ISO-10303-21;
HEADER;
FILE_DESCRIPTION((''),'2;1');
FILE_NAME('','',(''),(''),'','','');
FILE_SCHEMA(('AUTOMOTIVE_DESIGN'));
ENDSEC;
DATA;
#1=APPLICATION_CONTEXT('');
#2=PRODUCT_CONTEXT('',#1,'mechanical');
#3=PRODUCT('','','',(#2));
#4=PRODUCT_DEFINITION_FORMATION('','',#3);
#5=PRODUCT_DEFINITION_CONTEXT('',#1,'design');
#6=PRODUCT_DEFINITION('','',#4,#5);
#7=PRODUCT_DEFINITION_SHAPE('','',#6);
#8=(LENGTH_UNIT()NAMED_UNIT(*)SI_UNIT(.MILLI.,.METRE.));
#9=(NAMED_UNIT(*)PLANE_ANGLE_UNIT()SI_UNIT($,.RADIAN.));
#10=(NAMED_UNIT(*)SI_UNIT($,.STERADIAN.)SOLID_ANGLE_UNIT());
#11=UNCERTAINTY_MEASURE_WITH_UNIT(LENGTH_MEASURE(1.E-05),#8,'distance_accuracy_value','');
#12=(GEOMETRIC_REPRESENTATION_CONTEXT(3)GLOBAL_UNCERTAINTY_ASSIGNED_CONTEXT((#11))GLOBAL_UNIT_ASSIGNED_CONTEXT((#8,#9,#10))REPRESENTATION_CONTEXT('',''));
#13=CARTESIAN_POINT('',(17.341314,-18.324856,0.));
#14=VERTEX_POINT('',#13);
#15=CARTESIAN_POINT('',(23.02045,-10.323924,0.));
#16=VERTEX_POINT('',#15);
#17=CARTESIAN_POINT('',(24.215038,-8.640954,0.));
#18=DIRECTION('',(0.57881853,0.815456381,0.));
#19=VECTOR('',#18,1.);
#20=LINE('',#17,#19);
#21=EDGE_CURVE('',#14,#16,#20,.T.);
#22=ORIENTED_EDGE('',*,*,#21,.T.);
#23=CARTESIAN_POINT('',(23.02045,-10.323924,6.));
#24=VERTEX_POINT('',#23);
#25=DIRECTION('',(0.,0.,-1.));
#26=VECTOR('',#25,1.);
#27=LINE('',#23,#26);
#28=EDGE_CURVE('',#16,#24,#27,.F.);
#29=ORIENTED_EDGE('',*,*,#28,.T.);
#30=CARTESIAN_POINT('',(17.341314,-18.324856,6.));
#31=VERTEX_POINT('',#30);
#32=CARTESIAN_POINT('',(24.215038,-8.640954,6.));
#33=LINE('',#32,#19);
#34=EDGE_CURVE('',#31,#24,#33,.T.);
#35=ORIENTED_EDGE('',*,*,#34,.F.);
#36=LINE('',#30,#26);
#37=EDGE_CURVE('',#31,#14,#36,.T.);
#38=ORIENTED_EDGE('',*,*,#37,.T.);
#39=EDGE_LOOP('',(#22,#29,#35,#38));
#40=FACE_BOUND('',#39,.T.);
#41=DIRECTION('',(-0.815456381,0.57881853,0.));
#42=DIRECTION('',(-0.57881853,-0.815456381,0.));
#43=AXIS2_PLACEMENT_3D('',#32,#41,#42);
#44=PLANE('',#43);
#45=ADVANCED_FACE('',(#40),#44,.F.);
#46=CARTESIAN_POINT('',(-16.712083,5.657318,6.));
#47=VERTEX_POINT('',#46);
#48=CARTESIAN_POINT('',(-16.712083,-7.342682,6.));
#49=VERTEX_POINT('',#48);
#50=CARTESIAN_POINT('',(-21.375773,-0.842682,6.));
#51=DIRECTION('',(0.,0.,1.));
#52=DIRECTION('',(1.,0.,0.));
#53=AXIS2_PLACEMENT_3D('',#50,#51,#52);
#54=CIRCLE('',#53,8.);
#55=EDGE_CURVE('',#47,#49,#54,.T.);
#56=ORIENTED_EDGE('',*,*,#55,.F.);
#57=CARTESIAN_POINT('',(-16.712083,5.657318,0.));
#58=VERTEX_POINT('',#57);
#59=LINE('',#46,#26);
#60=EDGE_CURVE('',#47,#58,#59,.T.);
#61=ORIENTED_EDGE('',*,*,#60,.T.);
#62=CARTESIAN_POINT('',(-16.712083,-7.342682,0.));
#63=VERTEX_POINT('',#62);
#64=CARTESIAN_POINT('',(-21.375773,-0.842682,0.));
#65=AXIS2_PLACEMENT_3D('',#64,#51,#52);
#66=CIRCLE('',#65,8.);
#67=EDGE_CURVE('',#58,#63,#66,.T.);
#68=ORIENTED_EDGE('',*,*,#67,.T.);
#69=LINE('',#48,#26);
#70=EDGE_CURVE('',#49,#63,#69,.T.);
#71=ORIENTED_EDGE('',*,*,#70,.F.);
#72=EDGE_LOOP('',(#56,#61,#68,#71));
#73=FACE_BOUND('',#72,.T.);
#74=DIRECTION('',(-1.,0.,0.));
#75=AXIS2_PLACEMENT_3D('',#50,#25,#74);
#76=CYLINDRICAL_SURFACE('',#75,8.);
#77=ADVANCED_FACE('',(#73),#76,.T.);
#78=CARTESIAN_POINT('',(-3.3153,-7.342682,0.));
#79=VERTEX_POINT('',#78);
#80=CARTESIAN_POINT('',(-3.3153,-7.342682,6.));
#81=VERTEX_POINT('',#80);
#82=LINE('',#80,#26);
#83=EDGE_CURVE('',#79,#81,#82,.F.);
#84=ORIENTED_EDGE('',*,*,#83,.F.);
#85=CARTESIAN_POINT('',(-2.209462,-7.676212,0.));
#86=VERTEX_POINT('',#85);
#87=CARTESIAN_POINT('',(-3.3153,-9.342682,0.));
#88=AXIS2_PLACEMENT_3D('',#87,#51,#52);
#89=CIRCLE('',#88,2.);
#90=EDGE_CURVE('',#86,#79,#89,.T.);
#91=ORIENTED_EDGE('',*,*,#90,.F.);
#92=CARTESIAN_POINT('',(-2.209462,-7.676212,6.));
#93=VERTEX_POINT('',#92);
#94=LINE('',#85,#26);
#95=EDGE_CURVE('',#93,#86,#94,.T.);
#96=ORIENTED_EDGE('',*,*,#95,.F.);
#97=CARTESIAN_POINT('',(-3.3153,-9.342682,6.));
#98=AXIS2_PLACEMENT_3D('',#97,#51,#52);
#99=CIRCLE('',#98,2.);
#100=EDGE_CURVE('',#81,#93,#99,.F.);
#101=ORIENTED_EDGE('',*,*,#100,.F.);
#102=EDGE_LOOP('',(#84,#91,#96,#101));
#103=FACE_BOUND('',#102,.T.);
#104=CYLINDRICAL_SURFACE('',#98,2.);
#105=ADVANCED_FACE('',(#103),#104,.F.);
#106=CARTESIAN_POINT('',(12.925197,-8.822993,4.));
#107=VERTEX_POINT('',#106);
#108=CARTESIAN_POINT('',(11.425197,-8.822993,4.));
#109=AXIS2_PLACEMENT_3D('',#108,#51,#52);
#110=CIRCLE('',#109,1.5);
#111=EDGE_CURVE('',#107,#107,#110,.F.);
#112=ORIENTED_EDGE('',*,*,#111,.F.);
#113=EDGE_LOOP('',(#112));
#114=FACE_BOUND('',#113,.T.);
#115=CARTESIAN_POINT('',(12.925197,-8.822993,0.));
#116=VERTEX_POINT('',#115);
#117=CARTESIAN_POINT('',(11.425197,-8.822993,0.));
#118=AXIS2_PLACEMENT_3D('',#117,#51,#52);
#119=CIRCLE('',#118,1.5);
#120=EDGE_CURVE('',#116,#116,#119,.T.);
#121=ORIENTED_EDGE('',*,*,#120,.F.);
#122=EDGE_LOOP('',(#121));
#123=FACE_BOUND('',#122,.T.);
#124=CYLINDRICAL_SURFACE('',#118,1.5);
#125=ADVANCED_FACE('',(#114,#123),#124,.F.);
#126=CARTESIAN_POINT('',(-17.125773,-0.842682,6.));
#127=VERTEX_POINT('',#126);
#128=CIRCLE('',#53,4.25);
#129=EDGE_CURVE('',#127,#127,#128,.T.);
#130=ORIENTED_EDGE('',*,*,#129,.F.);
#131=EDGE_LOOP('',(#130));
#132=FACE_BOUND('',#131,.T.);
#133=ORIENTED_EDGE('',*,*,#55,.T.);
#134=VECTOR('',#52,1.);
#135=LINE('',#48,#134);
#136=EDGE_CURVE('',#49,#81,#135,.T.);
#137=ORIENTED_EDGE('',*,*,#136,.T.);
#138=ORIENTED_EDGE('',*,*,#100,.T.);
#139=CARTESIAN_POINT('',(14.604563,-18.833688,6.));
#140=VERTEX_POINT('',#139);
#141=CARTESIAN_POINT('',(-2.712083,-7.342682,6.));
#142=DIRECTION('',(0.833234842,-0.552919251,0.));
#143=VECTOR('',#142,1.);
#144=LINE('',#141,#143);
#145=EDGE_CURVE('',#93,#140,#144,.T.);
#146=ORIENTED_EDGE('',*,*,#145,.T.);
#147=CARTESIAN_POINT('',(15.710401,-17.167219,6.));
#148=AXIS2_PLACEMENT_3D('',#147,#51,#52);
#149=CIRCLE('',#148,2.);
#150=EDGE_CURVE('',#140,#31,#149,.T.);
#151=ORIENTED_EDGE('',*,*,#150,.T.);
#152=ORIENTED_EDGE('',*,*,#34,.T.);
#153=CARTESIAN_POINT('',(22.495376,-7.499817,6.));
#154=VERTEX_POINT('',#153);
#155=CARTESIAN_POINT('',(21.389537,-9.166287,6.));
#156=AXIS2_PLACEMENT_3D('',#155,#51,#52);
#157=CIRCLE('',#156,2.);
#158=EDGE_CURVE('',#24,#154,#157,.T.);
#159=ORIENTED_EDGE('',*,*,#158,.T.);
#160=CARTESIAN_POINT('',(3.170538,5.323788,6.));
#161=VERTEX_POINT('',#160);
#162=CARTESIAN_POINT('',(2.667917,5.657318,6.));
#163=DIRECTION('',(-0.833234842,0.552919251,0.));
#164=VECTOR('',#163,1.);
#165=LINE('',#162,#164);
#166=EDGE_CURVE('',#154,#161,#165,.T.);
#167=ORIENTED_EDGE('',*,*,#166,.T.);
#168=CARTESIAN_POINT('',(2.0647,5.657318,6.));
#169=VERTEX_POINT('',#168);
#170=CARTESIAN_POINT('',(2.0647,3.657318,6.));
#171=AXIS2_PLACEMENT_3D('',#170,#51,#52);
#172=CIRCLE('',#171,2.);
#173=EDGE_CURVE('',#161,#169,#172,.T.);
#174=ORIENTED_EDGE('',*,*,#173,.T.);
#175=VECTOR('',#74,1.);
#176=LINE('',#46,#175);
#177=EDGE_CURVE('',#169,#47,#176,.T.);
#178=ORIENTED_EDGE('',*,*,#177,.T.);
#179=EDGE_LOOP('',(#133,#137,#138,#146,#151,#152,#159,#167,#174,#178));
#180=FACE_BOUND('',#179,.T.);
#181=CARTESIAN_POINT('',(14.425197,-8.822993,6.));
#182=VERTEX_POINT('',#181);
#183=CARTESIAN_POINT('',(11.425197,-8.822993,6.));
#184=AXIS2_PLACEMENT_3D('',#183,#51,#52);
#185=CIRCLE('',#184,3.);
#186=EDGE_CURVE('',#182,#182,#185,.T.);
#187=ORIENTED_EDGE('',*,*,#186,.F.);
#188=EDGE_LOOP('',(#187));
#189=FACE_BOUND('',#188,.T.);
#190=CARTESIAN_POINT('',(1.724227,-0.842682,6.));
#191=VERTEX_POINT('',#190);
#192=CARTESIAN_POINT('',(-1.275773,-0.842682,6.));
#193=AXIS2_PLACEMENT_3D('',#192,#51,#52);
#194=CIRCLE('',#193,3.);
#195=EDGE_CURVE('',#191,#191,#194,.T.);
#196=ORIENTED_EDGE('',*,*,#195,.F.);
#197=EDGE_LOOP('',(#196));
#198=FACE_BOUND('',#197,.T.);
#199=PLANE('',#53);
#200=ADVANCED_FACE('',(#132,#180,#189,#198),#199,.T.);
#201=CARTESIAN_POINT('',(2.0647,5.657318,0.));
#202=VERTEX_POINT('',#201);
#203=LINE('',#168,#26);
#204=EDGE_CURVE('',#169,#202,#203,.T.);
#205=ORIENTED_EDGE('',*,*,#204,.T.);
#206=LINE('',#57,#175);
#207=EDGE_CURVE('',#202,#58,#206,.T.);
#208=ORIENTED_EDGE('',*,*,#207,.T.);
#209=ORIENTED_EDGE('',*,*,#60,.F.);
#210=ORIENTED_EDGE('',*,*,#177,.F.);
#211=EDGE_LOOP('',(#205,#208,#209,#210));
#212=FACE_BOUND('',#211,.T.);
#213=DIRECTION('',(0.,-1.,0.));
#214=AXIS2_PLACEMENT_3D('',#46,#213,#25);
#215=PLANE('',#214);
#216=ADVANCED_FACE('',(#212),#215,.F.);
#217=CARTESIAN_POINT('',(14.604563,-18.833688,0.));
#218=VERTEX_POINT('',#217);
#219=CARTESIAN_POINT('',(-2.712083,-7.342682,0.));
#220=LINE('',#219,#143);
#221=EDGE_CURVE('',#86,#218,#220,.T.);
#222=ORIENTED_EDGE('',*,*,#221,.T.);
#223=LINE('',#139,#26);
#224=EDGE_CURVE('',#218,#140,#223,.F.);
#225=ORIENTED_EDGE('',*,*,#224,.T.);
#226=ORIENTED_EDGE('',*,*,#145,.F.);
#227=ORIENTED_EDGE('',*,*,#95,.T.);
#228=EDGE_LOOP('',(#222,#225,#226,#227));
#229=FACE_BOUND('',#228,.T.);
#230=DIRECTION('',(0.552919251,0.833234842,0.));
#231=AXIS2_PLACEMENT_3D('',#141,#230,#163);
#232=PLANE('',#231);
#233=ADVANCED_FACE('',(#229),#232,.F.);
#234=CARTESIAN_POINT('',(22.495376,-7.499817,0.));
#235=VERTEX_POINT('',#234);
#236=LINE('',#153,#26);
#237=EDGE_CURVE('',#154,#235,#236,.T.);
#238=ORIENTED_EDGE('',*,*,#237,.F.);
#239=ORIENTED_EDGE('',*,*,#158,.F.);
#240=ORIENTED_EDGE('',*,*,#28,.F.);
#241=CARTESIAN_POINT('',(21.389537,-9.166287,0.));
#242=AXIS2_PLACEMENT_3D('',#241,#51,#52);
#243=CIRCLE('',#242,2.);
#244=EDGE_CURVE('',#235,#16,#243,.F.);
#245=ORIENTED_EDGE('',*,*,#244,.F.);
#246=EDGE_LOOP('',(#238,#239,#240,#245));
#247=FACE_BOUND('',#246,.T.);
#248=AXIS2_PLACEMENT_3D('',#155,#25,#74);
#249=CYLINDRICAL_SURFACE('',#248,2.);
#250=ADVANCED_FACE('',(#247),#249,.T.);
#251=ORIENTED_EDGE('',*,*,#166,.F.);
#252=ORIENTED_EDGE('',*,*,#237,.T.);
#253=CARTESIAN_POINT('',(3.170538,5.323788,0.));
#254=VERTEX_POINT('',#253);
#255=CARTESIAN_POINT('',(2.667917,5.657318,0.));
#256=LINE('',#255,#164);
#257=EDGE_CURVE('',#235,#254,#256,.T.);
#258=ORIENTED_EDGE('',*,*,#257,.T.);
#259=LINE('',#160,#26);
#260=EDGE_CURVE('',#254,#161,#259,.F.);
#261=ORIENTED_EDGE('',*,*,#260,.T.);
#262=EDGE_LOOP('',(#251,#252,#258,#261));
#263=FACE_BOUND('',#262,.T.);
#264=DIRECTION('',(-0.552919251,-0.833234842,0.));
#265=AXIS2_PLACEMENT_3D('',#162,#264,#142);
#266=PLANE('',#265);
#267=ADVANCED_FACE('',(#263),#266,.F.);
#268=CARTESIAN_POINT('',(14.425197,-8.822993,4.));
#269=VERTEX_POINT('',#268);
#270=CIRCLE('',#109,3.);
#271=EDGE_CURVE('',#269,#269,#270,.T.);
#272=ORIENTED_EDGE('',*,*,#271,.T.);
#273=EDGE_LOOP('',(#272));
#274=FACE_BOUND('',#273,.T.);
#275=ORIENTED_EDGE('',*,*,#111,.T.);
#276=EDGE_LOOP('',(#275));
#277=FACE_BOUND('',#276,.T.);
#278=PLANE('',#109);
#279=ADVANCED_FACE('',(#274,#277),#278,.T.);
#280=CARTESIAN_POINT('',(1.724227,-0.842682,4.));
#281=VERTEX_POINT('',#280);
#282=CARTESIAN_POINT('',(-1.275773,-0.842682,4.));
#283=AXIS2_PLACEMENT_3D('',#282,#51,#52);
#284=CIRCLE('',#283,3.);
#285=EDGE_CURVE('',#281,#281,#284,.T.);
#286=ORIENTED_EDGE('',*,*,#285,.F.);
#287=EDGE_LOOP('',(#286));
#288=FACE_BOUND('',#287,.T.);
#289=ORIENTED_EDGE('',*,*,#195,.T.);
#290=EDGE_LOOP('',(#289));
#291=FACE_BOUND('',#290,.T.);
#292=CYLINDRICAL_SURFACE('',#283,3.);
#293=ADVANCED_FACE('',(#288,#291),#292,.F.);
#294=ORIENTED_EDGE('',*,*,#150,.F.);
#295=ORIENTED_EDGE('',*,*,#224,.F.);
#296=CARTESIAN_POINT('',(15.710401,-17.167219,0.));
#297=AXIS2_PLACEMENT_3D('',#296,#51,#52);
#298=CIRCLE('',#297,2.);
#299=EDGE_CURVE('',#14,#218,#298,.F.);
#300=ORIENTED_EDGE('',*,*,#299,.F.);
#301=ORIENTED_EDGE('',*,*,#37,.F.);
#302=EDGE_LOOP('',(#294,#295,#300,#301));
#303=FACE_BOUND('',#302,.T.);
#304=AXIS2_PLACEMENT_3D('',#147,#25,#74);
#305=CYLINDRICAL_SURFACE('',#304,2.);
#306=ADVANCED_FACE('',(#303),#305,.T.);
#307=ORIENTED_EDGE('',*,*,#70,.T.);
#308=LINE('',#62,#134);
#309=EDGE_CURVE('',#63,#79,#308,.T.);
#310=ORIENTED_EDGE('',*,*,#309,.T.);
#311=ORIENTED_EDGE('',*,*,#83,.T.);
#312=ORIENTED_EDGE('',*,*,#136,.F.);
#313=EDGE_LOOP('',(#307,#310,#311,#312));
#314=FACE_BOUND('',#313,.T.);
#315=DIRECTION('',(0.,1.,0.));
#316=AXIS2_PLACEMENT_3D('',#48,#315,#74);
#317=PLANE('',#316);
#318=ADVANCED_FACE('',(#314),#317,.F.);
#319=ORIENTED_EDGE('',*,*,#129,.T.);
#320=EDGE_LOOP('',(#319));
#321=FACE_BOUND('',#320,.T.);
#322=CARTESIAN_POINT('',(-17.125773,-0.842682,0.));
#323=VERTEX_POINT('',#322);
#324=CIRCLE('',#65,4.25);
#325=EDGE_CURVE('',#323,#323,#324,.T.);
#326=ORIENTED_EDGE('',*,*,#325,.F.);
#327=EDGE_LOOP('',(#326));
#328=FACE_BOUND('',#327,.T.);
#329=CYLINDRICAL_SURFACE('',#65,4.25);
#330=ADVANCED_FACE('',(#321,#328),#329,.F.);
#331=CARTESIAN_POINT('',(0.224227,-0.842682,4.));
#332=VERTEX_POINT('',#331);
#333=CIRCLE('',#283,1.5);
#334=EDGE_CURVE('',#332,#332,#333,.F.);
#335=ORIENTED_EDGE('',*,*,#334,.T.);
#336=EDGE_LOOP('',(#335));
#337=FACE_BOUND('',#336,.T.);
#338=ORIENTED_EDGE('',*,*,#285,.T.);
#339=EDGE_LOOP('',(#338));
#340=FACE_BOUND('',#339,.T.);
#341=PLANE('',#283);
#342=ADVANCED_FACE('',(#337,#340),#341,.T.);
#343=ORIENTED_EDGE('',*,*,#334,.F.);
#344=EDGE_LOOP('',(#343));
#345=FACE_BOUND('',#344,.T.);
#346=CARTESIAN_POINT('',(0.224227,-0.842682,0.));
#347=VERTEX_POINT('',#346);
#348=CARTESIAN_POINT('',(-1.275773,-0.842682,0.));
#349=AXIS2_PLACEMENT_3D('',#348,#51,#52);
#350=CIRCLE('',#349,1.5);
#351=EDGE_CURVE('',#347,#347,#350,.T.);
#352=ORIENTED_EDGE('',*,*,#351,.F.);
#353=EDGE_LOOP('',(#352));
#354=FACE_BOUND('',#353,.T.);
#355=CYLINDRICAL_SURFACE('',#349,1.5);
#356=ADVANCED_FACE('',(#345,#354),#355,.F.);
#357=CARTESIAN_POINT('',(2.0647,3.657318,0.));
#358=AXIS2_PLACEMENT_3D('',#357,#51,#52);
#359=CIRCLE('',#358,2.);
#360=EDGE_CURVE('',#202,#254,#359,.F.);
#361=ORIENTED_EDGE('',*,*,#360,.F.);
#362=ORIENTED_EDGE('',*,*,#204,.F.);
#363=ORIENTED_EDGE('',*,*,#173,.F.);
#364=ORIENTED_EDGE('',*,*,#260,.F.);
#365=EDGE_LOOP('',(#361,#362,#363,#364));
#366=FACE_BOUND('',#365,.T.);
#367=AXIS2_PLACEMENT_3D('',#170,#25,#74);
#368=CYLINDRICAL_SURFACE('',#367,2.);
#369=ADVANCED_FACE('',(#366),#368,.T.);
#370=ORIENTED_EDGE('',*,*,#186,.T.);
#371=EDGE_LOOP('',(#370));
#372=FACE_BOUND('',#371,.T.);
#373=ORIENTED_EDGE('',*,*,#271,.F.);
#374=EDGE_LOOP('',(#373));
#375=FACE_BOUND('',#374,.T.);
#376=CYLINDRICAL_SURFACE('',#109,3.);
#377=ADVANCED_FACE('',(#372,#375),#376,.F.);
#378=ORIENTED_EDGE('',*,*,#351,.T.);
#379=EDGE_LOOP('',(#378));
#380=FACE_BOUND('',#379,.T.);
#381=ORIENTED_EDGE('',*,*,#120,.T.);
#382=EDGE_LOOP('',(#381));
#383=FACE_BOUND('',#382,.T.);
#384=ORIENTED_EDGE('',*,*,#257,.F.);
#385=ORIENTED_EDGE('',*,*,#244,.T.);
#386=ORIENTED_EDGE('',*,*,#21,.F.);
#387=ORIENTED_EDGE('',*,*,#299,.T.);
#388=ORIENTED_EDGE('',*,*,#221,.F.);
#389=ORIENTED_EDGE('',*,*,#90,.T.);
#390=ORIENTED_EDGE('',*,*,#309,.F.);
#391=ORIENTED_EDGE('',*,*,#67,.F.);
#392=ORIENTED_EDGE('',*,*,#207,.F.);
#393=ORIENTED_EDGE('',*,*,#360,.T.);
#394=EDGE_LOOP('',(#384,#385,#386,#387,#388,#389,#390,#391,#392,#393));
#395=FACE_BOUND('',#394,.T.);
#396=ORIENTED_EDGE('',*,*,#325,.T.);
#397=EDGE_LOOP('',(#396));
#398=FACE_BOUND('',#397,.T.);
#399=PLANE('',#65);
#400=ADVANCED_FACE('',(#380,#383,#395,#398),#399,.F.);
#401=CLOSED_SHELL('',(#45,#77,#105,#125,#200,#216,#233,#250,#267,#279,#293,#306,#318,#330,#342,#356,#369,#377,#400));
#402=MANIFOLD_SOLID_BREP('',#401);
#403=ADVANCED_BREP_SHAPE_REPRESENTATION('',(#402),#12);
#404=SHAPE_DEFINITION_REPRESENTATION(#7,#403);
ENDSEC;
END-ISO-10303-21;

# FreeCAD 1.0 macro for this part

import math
import FreeCAD as App
import Part
import Sketcher
from FreeCAD import Vector


def edges_at(feature, points):
    """Names of the edges that pass closest to the given points."""
    edges = feature.Shape.Edges
    near = lambda p: min(range(len(edges)), key=lambda i: edges[i].distToShape(Part.Vertex(*p))[0])
    return sorted({f"Edge{near(p) + 1}" for p in points})

doc = App.newDocument("Part")
body = doc.addObject("PartDesign::Body", "Body")

# Sketch on XY plane
sketch1 = body.newObject("Sketcher::SketchObject", "Sketch")
sketch1.AttachmentSupport = (doc.getObject("XY_Plane"), [""])
sketch1.MapMode = "FlatFace"
sketch1.addGeometry([
    Part.LineSegment(Vector(3, 6, 0), Vector(-17, 6, 0)),  # 0
    Part.ArcOfCircle(Part.Circle(Vector(-21, -1, 0), Vector(0, 0, 1), 8), math.radians(54), math.radians(306)),  # 1
    Part.LineSegment(Vector(-17, -7, 0), Vector(-3, -7, 0)),  # 2
    Part.LineSegment(Vector(-3, -7, 0), Vector(16, -20, 0)),  # 3
    Part.LineSegment(Vector(16, -20, 0), Vector(24, -9, 0)),  # 4
    Part.LineSegment(Vector(24, -9, 0), Vector(3, 6, 0)),  # 5
], False)
sketch1.addConstraint([
    Sketcher.Constraint("Coincident", 0, 2, 1, 1),
    Sketcher.Constraint("Coincident", 1, 2, 2, 1),
    Sketcher.Constraint("Coincident", 2, 2, 3, 1),
    Sketcher.Constraint("Coincident", 3, 2, 4, 1),
    Sketcher.Constraint("Coincident", 4, 2, 5, 1),
    Sketcher.Constraint("Coincident", 5, 2, 0, 1),
    Sketcher.Constraint("Horizontal", 0),
    Sketcher.Constraint("Horizontal", 2),
    Sketcher.Constraint("Parallel", 3, 5),
    Sketcher.Constraint("Vertical", 0, 2, 1, 2),
    Sketcher.Constraint("Radius", 1, 8.0),
    Sketcher.Constraint("DistanceX", 2, 1, 2, 2, 14.0),
    Sketcher.Constraint("DistanceY", 1, 2, 0, 2, 13.0),
    Sketcher.Constraint("DistanceX", 0, 2, 0, 1, 19.38),
    Sketcher.Constraint("Distance", 5, 25.859602),
    Sketcher.Constraint("DistanceY", 1, 3, -1, 1, 0.842682),
    Sketcher.Constraint("DistanceY", 3, 2, -1, 1, 19.905321),
    Sketcher.Constraint("DistanceX", -1, 1, 4, 2, 24.215038),
    Sketcher.Constraint("DistanceX", 2, 2, 3, 2, 18.931568),
])
pad1 = body.newObject("PartDesign::Pad", "Pad")
pad1.Profile = sketch1
pad1.Length = 6
doc.recompute()

fillet = body.newObject("PartDesign::Fillet", "Fillet")
fillet.Base = (pad1, edges_at(pad1, [
    (2.668, 5.657, 3),
    (24.215, -8.641, 3),
    (16.219, -19.905, 3),
    (-2.712, -7.343, 3),
]))
fillet.Radius = 2

# Sketch on XY plane
sketch2 = body.newObject("Sketcher::SketchObject", "Sketch001")
sketch2.AttachmentSupport = (doc.getObject("XY_Plane"), [""])
sketch2.MapMode = "FlatFace"
sketch2.AttachmentOffset = App.Placement(Vector(0, 0, 6), App.Rotation())
sketch2.addGeometry([
    Part.Circle(Vector(-21.4, -0.8, 0), Vector(0, 0, 1), 4.2),
    Part.Circle(Vector(-1.3, -0.8, 0), Vector(0, 0, 1), 1.5),
    Part.Circle(Vector(11.4, -8.8, 0), Vector(0, 0, 1), 1.5),
], False)
sketch2.addConstraint([
    Sketcher.Constraint("Equal", 1, 2),
    Sketcher.Constraint("Horizontal", 0, 3, 1, 3),
    Sketcher.Constraint("Diameter", 1, 3.0),
    Sketcher.Constraint("Diameter", 0, 8.5),
    Sketcher.Constraint("DistanceX", 0, 3, 1, 3, 20.1),
    Sketcher.Constraint("DistanceY", 0, 3, -1, 1, 0.842682),
    Sketcher.Constraint("DistanceX", 1, 3, 2, 3, 12.70097),
    Sketcher.Constraint("DistanceY", 2, 3, 1, 3, 7.980311),
    Sketcher.Constraint("DistanceX", 0, 3, -1, 1, 21.375773),
])
pocket1 = body.newObject("PartDesign::Pocket", "Pocket")
pocket1.Profile = sketch2
pocket1.Type = "ThroughAll"

# Sketch on XY plane
sketch3 = body.newObject("Sketcher::SketchObject", "Sketch002")
sketch3.AttachmentSupport = (doc.getObject("XY_Plane"), [""])
sketch3.MapMode = "FlatFace"
sketch3.AttachmentOffset = App.Placement(Vector(0, 0, 6), App.Rotation())
sketch3.addGeometry([
    Part.Circle(Vector(-1.3, -0.8, 0), Vector(0, 0, 1), 3),
    Part.Circle(Vector(11.4, -8.8, 0), Vector(0, 0, 1), 3),
], False)
sketch3.addConstraint([
    Sketcher.Constraint("Equal", 0, 1),
    Sketcher.Constraint("Diameter", 0, 6.0),
    Sketcher.Constraint("DistanceY", 0, 3, -1, 1, 0.842682),
    Sketcher.Constraint("DistanceX", 0, 3, 1, 3, 12.70097),
    Sketcher.Constraint("DistanceY", 1, 3, 0, 3, 7.980311),
    Sketcher.Constraint("DistanceX", 0, 3, -1, 1, 1.275773),
])
pocket2 = body.newObject("PartDesign::Pocket", "Pocket001")
pocket2.Profile = sketch3
pocket2.Length = 2

doc.recompute()
